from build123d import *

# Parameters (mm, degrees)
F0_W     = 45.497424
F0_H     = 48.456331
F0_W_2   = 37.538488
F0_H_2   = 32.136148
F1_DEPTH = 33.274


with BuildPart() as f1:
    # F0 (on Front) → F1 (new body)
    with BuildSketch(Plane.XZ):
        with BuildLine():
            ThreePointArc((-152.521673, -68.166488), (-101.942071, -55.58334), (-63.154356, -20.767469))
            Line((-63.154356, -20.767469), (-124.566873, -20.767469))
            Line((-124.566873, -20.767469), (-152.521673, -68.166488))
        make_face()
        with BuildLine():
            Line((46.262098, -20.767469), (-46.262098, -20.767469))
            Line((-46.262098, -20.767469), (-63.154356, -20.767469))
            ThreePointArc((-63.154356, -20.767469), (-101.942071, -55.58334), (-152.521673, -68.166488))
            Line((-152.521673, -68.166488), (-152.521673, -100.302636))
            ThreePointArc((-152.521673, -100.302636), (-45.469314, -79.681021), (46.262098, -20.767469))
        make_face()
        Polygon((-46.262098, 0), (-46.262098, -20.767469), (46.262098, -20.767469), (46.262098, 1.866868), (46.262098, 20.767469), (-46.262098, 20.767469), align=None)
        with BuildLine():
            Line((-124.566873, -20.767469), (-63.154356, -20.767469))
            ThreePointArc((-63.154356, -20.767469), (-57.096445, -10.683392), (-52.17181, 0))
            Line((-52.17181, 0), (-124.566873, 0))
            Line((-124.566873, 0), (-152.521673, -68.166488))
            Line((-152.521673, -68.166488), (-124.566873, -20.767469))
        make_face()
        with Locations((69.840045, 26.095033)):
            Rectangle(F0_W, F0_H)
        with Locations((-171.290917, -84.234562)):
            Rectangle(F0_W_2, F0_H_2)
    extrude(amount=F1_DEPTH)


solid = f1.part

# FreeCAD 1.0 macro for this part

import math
import FreeCAD as App
import Part
import Sketcher

V = App.Vector
Q = App.Units.Quantity


def add_polygon(sketch, points):
    """Adds a closed chain of lines whose ends are joined by coincident constraints."""
    first, n = sketch.GeometryCount, len(points)
    for a, b in zip(points, points[1:] + points[:1]):
        sketch.addGeometry(Part.LineSegment(App.Vector(*a, 0), App.Vector(*b, 0)), False)
    for i in range(n):
        sketch.addConstraint(Sketcher.Constraint("Coincident", first + i, 2, first + (i + 1) % n, 1))

doc = App.newDocument("Part")
params = doc.addObject("Spreadsheet::Sheet", "Params")
for row, (alias, value) in enumerate([
    ("pad1_length", "1.31 in"),
], start=1):
    params.set(f"A{row}", alias)
    params.set(f"B{row}", "=" + value)
    params.setAlias(f"B{row}", alias)

body = doc.addObject("PartDesign::Body", "Body")
body.AllowCompound = True

# Sketch on XZ plane
sketch1 = doc.addObject("Sketcher::SketchObject", "Sketch")
body.addObject(sketch1)
sketch1.AttachmentSupport = (doc.XZ_Plane, [""])
sketch1.MapMode = "FlatFace"
sketch1.addGeometry(Part.ArcOfCircle(Part.Circle(V(-152.521676, 187.877003, 0), V(0, 0, 1), 288.179639), math.radians(-89.999999), math.radians(-46.386419)), False)  # 0
sketch1.addGeometry(Part.LineSegment(V(46.262098, -20.767469, 0), V(46.262098, 20.767469, 0)), False)  # 1
sketch1.addGeometry(Part.LineSegment(V(46.262098, 20.767469, 0), V(-46.262098, 20.767469, 0)), False)  # 2
sketch1.addGeometry(Part.LineSegment(V(-46.262098, 20.767469, 0), V(-46.262098, -20.767469, 0)), False)  # 3
sketch1.addGeometry(Part.LineSegment(V(-46.262098, -20.767469, 0), V(-63.154356, -20.767469, 0)), False)  # 4
sketch1.addGeometry(Part.ArcOfCircle(Part.Circle(V(-152.521585, 39.780677, 0), V(0, 0, 1), 107.947115), math.radians(-34.118452), math.radians(-21.624374)), False)  # 5
sketch1.addGeometry(Part.LineSegment(V(-52.17181, 0, 0), V(-124.566873, 0, 0)), False)  # 6
sketch1.addGeometry(Part.LineSegment(V(-124.566873, 0, 0), V(-152.521673, -68.166488, 0)), False)  # 7
sketch1.addGeometry(Part.LineSegment(V(-152.521673, -68.166488, 0), V(-190.060161, -68.166488, 0)), False)  # 8
sketch1.addGeometry(Part.LineSegment(V(-190.060161, -68.166488, 0), V(-190.060161, -100.302636, 0)), False)  # 9
sketch1.addGeometry(Part.LineSegment(V(-190.060161, -100.302636, 0), V(-152.521673, -100.302636, 0)), False)  # 10
add_polygon(sketch1, [(47.091333, 50.323198), (47.091333, 1.866867), (92.588757, 1.866867), (92.588757, 50.323198)])  # lines 11-14
sketch1.addConstraint(Sketcher.Constraint("Coincident", 0, 2, 1, 1))
sketch1.addConstraint(Sketcher.Constraint("Coincident", 1, 2, 2, 1))
sketch1.addConstraint(Sketcher.Constraint("Coincident", 2, 2, 3, 1))
sketch1.addConstraint(Sketcher.Constraint("Coincident", 3, 2, 4, 1))
sketch1.addConstraint(Sketcher.Constraint("Coincident", 4, 2, 5, 1))
sketch1.addConstraint(Sketcher.Constraint("Coincident", 5, 2, 6, 1))
sketch1.addConstraint(Sketcher.Constraint("Coincident", 6, 2, 7, 1))
sketch1.addConstraint(Sketcher.Constraint("Coincident", 7, 2, 8, 1))
sketch1.addConstraint(Sketcher.Constraint("Coincident", 8, 2, 9, 1))
sketch1.addConstraint(Sketcher.Constraint("Coincident", 9, 2, 10, 1))
sketch1.addConstraint(Sketcher.Constraint("Tangent", 10, 2, 0, 1))
sketch1.addConstraint(Sketcher.Constraint("Vertical", 1))
sketch1.addConstraint(Sketcher.Constraint("Horizontal", 2))
sketch1.addConstraint(Sketcher.Constraint("Vertical", 3))
sketch1.addConstraint(Sketcher.Constraint("Horizontal", 4))
sketch1.addConstraint(Sketcher.Constraint("Horizontal", 6))
sketch1.addConstraint(Sketcher.Constraint("Horizontal", 8))
sketch1.addConstraint(Sketcher.Constraint("Vertical", 9))
sketch1.addConstraint(Sketcher.Constraint("Horizontal", 10))
sketch1.addConstraint(Sketcher.Constraint("Vertical", 11))
sketch1.addConstraint(Sketcher.Constraint("Horizontal", 12))
sketch1.addConstraint(Sketcher.Constraint("Vertical", 13))
sketch1.addConstraint(Sketcher.Constraint("Horizontal", 14))
sketch1.addConstraint(Sketcher.Constraint("Symmetric", 0, 2, 2, 2, -1, 1))
sketch1.addConstraint(Sketcher.Constraint("PointOnObject", 5, 2, -1))
sketch1.addConstraint(Sketcher.Constraint("Horizontal", 0, 2, 3, 2))
sketch1.addConstraint(Sketcher.Constraint("Vertical", 7, 2, 10, 2))
sketch1.addConstraint(Sketcher.Constraint("Radius", 0, Q("288.179639 mm")))
sketch1.addConstraint(Sketcher.Constraint("Radius", 5, Q("107.947115 mm")))
sketch1.addConstraint(Sketcher.Constraint("DistanceY", 9, 2, 9, 1, Q("32.136148 mm")))
sketch1.addConstraint(Sketcher.Constraint("DistanceY", 11, 2, 11, 1, Q("48.456331 mm")))
sketch1.addConstraint(Sketcher.Constraint("DistanceX", -1, 1, 1, 2, Q("46.262098 mm")))
sketch1.addConstraint(Sketcher.Constraint("DistanceY", -1, 1, 13, 2, Q("50.323198 mm")))
sketch1.addConstraint(Sketcher.Constraint("DistanceX", 7, 2, 6, 2, Q("27.9548 mm")))
sketch1.addConstraint(Sketcher.Constraint("DistanceY", 11, 2, 1, 2, Q("18.900601 mm")))
sketch1.addConstraint(Sketcher.Constraint("Distance", 7, Q("73.675918 mm")))
sketch1.addConstraint(Sketcher.Constraint("DistanceX", 4, 2, 4, 1, Q("16.892258 mm")))
sketch1.addConstraint(Sketcher.Constraint("DistanceX", 6, 2, 6, 1, Q("72.395063 mm")))
sketch1.addConstraint(Sketcher.Constraint("DistanceX", 8, 2, 8, 1, Q("37.538488 mm")))
sketch1.addConstraint(Sketcher.Constraint("DistanceX", 12, 1, 12, 2, Q("45.497424 mm")))
sketch1.addConstraint(Sketcher.Constraint("DistanceX", 2, 2, 11, 2, Q("93.353431 mm")))
pad1 = doc.addObject("PartDesign::Pad", "Pad")
body.addObject(pad1)
pad1.Profile = sketch1
pad1.setExpression("Length", "Params.pad1_length")

doc.recompute()
